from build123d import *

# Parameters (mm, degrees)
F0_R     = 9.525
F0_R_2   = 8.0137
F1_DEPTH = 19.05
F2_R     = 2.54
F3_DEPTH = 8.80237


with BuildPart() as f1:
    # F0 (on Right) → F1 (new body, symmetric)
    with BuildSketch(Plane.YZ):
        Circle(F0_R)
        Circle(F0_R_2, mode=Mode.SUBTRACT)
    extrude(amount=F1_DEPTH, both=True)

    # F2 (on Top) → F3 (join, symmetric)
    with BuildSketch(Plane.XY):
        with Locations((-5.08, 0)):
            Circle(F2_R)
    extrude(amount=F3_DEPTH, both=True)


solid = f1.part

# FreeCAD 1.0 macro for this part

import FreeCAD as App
import Part
import Sketcher
from FreeCAD import Vector
Q = App.Units.Quantity

doc = App.newDocument("Part")
body = doc.addObject("PartDesign::Body", "Body")

# Sketch on YZ plane
sketch1 = body.newObject("Sketcher::SketchObject", "Sketch")
sketch1.AttachmentSupport = (doc.getObject("YZ_Plane"), [""])
sketch1.MapMode = "FlatFace"
sketch1.addGeometry([
    Part.Circle(Vector(0, 0, 0), Vector(0, 0, 1), 10),
    Part.Circle(Vector(0, 0, 0), Vector(0, 0, 1), 8),
], False)
sketch1.addConstraint([
    Sketcher.Constraint("Coincident", 0, 3, -1, 1),
    Sketcher.Constraint("Coincident", 1, 3, -1, 1),
    Sketcher.Constraint("Diameter", 0, Q("0.75 in")),
    Sketcher.Constraint("Diameter", 1, Q("0.631 in")),
])
pad1 = body.newObject("PartDesign::Pad", "Pad")
pad1.Profile = sketch1
pad1.Length = Q("1.5 in")
pad1.Midplane = True

# Sketch on XY plane
sketch2 = body.newObject("Sketcher::SketchObject", "Sketch001")
sketch2.AttachmentSupport = (doc.getObject("XY_Plane"), [""])
sketch2.MapMode = "FlatFace"
sketch2.addGeometry(Part.Circle(Vector(-5.1, 0, 0), Vector(0, 0, 1), 2.5), False)
sketch2.addConstraint([
    Sketcher.Constraint("PointOnObject", 0, 3, -1),
    Sketcher.Constraint("Diameter", 0, Q("0.2 in")),
    Sketcher.Constraint("DistanceX", 0, 3, -1, 1, Q("0.2 in")),
])
pad2 = body.newObject("PartDesign::Pad", "Pad001")
pad2.Profile = sketch2
pad2.Length = Q("0.6931 in")
pad2.Midplane = True

doc.recompute()
